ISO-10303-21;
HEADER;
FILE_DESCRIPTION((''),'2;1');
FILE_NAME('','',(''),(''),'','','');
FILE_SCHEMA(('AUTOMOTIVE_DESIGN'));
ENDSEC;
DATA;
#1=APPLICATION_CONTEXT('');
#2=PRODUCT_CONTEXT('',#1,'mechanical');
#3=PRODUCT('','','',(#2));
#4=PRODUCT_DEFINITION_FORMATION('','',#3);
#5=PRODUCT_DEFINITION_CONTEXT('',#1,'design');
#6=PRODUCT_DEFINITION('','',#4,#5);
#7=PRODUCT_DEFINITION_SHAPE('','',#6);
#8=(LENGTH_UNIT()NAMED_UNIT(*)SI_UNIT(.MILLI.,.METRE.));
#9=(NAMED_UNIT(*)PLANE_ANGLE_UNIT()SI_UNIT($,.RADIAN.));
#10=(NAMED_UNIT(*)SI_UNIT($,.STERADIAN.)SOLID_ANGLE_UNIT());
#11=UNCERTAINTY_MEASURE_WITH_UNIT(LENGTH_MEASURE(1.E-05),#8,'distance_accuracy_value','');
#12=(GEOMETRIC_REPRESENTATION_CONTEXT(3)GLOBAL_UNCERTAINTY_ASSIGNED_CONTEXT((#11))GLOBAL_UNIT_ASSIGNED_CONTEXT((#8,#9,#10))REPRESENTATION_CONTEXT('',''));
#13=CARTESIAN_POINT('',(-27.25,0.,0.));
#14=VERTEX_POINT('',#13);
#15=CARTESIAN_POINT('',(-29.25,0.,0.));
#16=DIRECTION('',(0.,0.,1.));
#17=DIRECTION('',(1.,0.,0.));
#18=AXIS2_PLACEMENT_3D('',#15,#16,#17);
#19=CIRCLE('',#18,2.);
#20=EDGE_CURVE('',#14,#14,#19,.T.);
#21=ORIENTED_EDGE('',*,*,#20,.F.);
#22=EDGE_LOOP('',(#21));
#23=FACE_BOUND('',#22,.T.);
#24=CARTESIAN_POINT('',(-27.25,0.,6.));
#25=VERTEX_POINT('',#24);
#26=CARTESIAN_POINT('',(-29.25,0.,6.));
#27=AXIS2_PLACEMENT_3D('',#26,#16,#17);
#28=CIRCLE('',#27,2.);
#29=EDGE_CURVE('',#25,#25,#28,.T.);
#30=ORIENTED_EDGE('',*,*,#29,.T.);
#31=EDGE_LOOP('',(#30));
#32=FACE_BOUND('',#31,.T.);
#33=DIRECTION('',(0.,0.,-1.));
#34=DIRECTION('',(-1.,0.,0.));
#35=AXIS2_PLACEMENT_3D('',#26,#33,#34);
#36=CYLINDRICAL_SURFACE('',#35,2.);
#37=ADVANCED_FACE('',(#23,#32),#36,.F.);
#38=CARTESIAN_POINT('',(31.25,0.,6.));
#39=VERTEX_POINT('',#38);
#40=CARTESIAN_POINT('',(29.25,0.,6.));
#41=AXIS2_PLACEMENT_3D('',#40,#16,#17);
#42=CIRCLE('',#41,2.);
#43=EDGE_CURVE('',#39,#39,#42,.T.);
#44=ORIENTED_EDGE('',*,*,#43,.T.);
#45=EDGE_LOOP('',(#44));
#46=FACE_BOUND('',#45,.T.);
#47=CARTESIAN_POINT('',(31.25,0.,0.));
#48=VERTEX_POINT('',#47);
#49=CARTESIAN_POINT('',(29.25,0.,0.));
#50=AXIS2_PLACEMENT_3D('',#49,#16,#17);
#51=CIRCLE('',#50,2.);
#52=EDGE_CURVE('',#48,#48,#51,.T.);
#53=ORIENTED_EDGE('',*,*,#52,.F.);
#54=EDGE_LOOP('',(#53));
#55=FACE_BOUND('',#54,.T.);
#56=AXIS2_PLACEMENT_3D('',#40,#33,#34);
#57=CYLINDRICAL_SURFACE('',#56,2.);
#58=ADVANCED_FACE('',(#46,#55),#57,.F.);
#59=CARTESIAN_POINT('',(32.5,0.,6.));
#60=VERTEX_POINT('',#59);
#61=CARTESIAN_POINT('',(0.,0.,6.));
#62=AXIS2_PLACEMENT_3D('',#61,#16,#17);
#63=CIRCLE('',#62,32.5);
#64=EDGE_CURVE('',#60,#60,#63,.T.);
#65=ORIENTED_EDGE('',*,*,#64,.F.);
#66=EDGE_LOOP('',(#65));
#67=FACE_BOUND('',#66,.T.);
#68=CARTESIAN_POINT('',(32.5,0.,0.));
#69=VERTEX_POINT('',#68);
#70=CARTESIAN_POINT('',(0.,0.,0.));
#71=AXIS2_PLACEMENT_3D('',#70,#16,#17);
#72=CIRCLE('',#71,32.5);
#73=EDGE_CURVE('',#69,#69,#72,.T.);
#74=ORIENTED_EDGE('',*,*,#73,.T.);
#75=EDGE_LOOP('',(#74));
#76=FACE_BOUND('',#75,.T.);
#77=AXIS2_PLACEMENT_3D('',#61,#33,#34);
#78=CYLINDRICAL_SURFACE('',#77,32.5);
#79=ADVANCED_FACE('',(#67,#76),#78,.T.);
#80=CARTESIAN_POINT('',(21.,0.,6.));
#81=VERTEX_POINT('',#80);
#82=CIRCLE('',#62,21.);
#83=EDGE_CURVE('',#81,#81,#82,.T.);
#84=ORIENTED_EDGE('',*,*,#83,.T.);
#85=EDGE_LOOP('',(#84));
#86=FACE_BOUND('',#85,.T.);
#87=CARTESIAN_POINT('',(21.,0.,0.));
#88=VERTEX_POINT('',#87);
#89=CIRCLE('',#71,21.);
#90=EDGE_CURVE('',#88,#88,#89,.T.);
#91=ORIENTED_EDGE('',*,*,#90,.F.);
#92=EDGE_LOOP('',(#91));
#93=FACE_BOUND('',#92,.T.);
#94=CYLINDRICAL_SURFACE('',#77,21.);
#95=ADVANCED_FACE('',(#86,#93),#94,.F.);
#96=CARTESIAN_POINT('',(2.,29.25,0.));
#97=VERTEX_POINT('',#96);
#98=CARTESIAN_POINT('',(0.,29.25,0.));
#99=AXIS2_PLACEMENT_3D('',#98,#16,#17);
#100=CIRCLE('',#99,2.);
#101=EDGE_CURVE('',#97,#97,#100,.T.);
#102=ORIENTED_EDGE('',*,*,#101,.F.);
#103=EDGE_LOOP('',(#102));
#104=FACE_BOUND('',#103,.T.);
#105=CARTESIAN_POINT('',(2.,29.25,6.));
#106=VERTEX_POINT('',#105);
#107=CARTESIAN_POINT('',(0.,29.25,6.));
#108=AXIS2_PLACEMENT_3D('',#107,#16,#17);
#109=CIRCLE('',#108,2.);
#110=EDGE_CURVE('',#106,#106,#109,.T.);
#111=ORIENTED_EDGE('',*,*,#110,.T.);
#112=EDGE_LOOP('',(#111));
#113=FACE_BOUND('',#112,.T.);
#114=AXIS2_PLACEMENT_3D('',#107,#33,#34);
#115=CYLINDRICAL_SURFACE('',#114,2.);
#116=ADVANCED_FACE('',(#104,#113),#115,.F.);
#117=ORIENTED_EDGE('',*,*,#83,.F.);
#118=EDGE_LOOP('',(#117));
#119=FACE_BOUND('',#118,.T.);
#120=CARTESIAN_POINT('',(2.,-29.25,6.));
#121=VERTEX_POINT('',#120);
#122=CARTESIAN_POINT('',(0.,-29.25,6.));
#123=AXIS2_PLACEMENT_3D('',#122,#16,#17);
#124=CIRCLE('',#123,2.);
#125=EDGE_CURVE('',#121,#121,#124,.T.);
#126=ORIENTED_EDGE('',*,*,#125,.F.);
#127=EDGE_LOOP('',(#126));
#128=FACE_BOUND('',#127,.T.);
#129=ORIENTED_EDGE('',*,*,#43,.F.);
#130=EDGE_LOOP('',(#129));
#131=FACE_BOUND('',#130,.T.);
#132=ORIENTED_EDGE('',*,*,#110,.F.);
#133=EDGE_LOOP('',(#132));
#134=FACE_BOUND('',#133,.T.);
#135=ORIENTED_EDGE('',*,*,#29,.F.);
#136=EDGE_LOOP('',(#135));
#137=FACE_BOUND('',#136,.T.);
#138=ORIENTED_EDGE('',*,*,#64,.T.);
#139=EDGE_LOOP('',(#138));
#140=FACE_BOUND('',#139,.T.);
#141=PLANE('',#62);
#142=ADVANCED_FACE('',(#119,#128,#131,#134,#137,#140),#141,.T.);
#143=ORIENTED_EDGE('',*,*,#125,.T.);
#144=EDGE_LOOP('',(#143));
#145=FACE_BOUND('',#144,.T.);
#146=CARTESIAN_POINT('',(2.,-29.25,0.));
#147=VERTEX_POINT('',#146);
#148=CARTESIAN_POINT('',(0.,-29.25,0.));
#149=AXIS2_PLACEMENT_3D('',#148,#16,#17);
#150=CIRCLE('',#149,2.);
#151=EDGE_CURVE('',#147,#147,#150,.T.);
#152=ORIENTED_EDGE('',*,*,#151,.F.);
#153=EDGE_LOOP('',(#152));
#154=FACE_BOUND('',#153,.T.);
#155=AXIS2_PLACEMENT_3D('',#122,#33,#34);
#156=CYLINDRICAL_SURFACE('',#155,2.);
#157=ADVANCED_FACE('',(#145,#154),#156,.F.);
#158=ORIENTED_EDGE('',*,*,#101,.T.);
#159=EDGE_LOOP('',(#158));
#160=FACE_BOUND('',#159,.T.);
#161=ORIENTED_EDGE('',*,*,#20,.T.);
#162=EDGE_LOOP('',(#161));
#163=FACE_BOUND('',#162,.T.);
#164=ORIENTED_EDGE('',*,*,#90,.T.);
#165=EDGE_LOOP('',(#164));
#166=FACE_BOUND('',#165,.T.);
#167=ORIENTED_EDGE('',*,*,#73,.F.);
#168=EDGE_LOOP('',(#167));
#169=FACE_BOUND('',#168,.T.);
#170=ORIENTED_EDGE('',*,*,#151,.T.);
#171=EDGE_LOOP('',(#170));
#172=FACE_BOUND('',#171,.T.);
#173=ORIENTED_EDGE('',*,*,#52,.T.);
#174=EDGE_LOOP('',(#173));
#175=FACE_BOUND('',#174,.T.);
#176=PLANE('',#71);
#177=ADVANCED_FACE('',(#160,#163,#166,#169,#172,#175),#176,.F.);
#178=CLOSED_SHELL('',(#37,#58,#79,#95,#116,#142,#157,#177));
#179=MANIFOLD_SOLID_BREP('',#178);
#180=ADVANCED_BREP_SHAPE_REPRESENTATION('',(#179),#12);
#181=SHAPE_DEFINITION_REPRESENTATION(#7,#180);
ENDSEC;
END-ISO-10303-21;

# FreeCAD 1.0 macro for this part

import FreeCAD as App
import Part
import Sketcher
from FreeCAD import Vector

doc = App.newDocument("Part")
body = doc.addObject("PartDesign::Body", "Body")

# Sketch on XY plane
sketch1 = body.newObject("Sketcher::SketchObject", "Sketch")
sketch1.AttachmentSupport = (doc.getObject("XY_Plane"), [""])
sketch1.MapMode = "FlatFace"
sketch1.addGeometry(Part.Circle(Vector(0, 0, 0), Vector(0, 0, 1), 32.5), False)
sketch1.addGeometry(Part.Circle(Vector(0, -29.25, 0), Vector(0, 0, 1), 2), False)
sketch1.addGeometry(Part.Circle(Vector(-29.25, 0, 0), Vector(0, 0, 1), 2), False)
sketch1.addGeometry(Part.Circle(Vector(0, 0, 0), Vector(0, 0, 1), 21), False)
sketch1.addGeometry(Part.Circle(Vector(29.25, 0, 0), Vector(0, 0, 1), 2), False)
sketch1.addGeometry(Part.Circle(Vector(0, 29.25, 0), Vector(0, 0, 1), 2), False)
sketch1.addConstraint(Sketcher.Constraint("Coincident", 0, 3, -1, 1))
sketch1.addConstraint(Sketcher.Constraint("Coincident", 3, 3, -1, 1))
sketch1.addConstraint(Sketcher.Constraint("Equal", 1, 2))
sketch1.addConstraint(Sketcher.Constraint("Equal", 2, 4))
sketch1.addConstraint(Sketcher.Constraint("Equal", 4, 5))
sketch1.addConstraint(Sketcher.Constraint("Symmetric", 2, 3, 4, 3, -1, 1))
sketch1.addConstraint(Sketcher.Constraint("Symmetric", 1, 3, 5, 3, -1, 1))
sketch1.addConstraint(Sketcher.Constraint("PointOnObject", 1, 3, -2))
sketch1.addConstraint(Sketcher.Constraint("PointOnObject", 2, 3, -1))
sketch1.addConstraint(Sketcher.Constraint("Diameter", 0, 65.0))
sketch1.addConstraint(Sketcher.Constraint("Diameter", 1, 4.0))
sketch1.addConstraint(Sketcher.Constraint("Diameter", 3, 42.0))
sketch1.addConstraint(Sketcher.Constraint("DistanceX", 2, 3, 4, 3, 58.5))
sketch1.addConstraint(Sketcher.Constraint("DistanceY", 1, 3, 5, 3, 58.5))
pad1 = body.newObject("PartDesign::Pad", "Pad")
pad1.Profile = sketch1
pad1.Length = 6

doc.recompute()
